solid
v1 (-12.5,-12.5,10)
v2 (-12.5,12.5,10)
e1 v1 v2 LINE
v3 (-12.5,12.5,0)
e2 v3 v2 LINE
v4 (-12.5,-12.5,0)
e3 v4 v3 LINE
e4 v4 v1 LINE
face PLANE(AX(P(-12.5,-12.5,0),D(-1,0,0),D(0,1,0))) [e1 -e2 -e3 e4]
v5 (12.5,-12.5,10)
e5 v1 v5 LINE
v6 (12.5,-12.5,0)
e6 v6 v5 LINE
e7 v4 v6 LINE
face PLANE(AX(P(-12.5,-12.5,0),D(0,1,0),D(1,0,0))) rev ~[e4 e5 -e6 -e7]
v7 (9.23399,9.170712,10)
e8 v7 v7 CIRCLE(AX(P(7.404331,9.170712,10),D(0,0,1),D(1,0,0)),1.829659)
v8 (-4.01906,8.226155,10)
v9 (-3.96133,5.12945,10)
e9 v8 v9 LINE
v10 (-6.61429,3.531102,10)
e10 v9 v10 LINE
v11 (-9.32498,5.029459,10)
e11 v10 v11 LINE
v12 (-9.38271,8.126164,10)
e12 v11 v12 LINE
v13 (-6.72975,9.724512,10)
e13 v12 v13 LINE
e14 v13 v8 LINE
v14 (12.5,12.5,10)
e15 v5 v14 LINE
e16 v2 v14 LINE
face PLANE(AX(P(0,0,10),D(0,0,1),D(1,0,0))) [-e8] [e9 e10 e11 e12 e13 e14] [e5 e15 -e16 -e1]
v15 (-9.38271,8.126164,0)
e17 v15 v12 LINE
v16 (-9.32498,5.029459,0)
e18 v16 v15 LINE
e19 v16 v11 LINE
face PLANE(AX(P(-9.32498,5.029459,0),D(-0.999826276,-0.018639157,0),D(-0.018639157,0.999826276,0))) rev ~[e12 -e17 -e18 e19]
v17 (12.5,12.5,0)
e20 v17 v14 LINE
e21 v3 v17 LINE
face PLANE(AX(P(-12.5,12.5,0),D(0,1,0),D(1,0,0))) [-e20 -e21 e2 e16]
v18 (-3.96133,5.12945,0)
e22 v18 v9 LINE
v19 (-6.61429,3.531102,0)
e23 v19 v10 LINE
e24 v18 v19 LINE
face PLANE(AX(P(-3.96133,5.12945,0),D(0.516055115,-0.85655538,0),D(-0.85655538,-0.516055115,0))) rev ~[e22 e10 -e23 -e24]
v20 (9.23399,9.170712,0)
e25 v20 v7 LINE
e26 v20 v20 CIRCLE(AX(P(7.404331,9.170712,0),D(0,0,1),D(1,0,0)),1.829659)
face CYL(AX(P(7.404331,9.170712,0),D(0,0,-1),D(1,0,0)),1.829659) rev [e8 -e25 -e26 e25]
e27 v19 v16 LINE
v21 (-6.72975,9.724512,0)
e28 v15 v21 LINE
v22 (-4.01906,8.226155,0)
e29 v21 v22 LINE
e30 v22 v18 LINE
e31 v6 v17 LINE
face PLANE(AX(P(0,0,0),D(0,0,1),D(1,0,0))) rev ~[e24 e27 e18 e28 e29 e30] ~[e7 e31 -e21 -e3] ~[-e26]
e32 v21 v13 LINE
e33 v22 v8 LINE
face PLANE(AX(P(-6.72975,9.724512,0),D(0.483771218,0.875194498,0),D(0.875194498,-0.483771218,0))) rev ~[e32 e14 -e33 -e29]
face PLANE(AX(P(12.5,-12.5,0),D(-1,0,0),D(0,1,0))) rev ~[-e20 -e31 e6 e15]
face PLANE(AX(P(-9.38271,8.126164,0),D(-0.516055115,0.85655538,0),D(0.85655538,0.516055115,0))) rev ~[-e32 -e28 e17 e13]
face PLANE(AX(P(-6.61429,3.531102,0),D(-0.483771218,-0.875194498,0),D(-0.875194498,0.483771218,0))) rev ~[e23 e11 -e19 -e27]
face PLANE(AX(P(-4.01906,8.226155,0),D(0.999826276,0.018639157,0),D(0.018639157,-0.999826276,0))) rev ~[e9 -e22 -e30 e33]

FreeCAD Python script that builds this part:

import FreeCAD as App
import Part
import Sketcher
Q = App.Units.Quantity


def add_polygon(sketch, points):
    """Adds a closed chain of lines whose ends are joined by coincident constraints."""
    first, n = sketch.GeometryCount, len(points)
    for a, b in zip(points, points[1:] + points[:1]):
        sketch.addGeometry(Part.LineSegment(App.Vector(*a, 0), App.Vector(*b, 0)), False)
    for i in range(n):
        sketch.addConstraint(Sketcher.Constraint("Coincident", first + i, 2, first + (i + 1) % n, 1))

doc = App.newDocument("Part")
body = doc.addObject("PartDesign::Body", "Body")

sketch1 = body.newObject("Sketcher::SketchObject", "Sketch")
sketch1.AttachmentSupport = (doc.getObject("XY_Plane"), [""])
sketch1.MapMode = "FlatFace"
add_polygon(sketch1, [(-12.5, 12.5), (-12.5, -12.5), (12.5, -12.5), (12.5, 12.5)])
add_polygon(sketch1, [(-6.7, 9.7), (-4, 8.2), (-4, 5.1), (-6.6, 3.5), (-9.3, 5), (-9.4, 8.1)])
sketch1.addGeometry(Part.Circle(App.Vector(7.4, 9.2, 0), App.Vector(0, 0, 1), 1.8), False)
sketch1.addConstraint([
    Sketcher.Constraint("Vertical", 0),
    Sketcher.Constraint("Horizontal", 1),
    Sketcher.Constraint("Vertical", 2),
    Sketcher.Constraint("Horizontal", 3),
    Sketcher.Constraint("Symmetric", 0, 2, 2, 2, -1, 1),
    Sketcher.Constraint("Parallel", 4, 7),
    Sketcher.Constraint("Parallel", 5, 8),
    Sketcher.Constraint("Parallel", 6, 9),
    Sketcher.Constraint("Equal", 3, 0),
    Sketcher.Constraint("Equal", 4, 5),
    Sketcher.Constraint("Equal", 5, 6),
    Sketcher.Constraint("Equal", 6, 7),
    Sketcher.Constraint("DistanceX", 1, 1, 1, 2, Q("25 mm")),
    Sketcher.Constraint("Diameter", 10, Q("3.659318 mm")),
    Sketcher.Constraint("DistanceX", -1, 1, 10, 3, Q("7.404331 mm")),
    Sketcher.Constraint("DistanceX", 4, 2, -1, 1, Q("4.01906 mm")),
    Sketcher.Constraint("DistanceX", 5, 2, -1, 1, Q("3.96133 mm")),
    Sketcher.Constraint("DistanceY", -1, 1, 5, 2, Q("5.12945 mm")),
    Sketcher.Constraint("DistanceX", 6, 2, -1, 1, Q("6.61429 mm")),
    Sketcher.Constraint("DistanceX", 7, 2, -1, 1, Q("9.32498 mm")),
    Sketcher.Constraint("DistanceY", -1, 1, 7, 2, Q("5.029459 mm")),
    Sketcher.Constraint("DistanceY", 10, 3, 2, 2, Q("3.329288 mm")),
])
pad1 = body.newObject("PartDesign::Pad", "Pad")
pad1.Profile = sketch1
pad1.Length = 10

doc.recompute()
